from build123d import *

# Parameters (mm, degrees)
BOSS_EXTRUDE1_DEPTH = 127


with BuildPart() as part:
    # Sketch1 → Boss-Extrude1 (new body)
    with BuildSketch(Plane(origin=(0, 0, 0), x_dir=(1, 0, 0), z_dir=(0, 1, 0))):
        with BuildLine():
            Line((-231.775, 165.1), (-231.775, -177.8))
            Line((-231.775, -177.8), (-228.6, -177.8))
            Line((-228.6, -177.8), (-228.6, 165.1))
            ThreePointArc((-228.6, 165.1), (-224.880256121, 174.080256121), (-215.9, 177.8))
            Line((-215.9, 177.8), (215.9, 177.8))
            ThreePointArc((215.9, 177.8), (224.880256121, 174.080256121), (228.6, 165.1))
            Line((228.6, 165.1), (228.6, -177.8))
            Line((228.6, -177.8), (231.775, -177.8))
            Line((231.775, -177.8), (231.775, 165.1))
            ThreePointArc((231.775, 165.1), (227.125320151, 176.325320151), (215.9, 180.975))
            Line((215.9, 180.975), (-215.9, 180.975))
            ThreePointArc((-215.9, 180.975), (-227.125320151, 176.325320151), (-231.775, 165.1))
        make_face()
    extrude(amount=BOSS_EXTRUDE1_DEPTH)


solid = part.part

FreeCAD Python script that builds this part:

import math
import FreeCAD as App
import Part
import Sketcher
from FreeCAD import Vector
Q = App.Units.Quantity

doc = App.newDocument("Part")
body = doc.addObject("PartDesign::Body", "Body")

# Sketch on XZ plane
sketch1 = body.newObject("Sketcher::SketchObject", "Sketch")
sketch1.AttachmentSupport = (doc.getObject("XZ_Plane"), [""])
sketch1.MapMode = "FlatFace"
sketch1.addGeometry([
    Part.LineSegment(Vector(-231.8, -165.1, 0), Vector(-231.8, 177.8, 0)),  # 0
    Part.LineSegment(Vector(-231.8, 177.8, 0), Vector(-228.6, 177.8, 0)),  # 1
    Part.LineSegment(Vector(-228.6, 177.8, 0), Vector(-228.6, -165.1, 0)),  # 2
    Part.ArcOfCircle(Part.Circle(Vector(-215.9, -165.1, 0), Vector(0, 0, 1), 12.7), math.radians(180), math.radians(270)),  # 3
    Part.LineSegment(Vector(-215.9, -177.8, 0), Vector(215.9, -177.8, 0)),  # 4
    Part.ArcOfCircle(Part.Circle(Vector(215.9, -165.1, 0), Vector(0, 0, 1), 12.7), math.radians(-90), math.radians(0)),  # 5
    Part.LineSegment(Vector(228.6, -165.1, 0), Vector(228.6, 177.8, 0)),  # 6
    Part.LineSegment(Vector(228.6, 177.8, 0), Vector(231.8, 177.8, 0)),  # 7
    Part.LineSegment(Vector(231.8, 177.8, 0), Vector(231.8, -165.1, 0)),  # 8
    Part.ArcOfCircle(Part.Circle(Vector(215.9, -165.1, 0), Vector(0, 0, 1), 15.9), math.radians(-90), math.radians(0)),  # 9
    Part.LineSegment(Vector(215.9, -181, 0), Vector(-215.9, -181, 0)),  # 10
    Part.ArcOfCircle(Part.Circle(Vector(-215.9, -165.1, 0), Vector(0, 0, 1), 15.9), math.radians(-180), math.radians(-90)),  # 11
], False)
sketch1.addConstraint([
    Sketcher.Constraint("Coincident", 0, 2, 1, 1),
    Sketcher.Constraint("Coincident", 1, 2, 2, 1),
    Sketcher.Constraint("Tangent", 2, 2, 3, 1),
    Sketcher.Constraint("Tangent", 3, 2, 4, 1),
    Sketcher.Constraint("Tangent", 4, 2, 5, 1),
    Sketcher.Constraint("Tangent", 5, 2, 6, 1),
    Sketcher.Constraint("Coincident", 6, 2, 7, 1),
    Sketcher.Constraint("Coincident", 7, 2, 8, 1),
    Sketcher.Constraint("Tangent", 8, 2, 9, 2),
    Sketcher.Constraint("Tangent", 9, 1, 10, 1),
    Sketcher.Constraint("Tangent", 10, 2, 11, 2),
    Sketcher.Constraint("Tangent", 11, 1, 0, 1),
    Sketcher.Constraint("Vertical", 0),
    Sketcher.Constraint("Horizontal", 1),
    Sketcher.Constraint("Vertical", 2),
    Sketcher.Constraint("Horizontal", 4),
    Sketcher.Constraint("Vertical", 6),
    Sketcher.Constraint("Horizontal", 7),
    Sketcher.Constraint("Vertical", 8),
    Sketcher.Constraint("Horizontal", 10),
    Sketcher.Constraint("Coincident", 9, 3, 5, 3),
    Sketcher.Constraint("Coincident", 11, 3, 3, 3),
    Sketcher.Constraint("Equal", 3, 5),
    Sketcher.Constraint("Symmetric", 1, 2, 6, 2, -2),
    Sketcher.Constraint("Radius", 3, Q("0.5 in")),
    Sketcher.Constraint("DistanceX", 4, 1, 4, 2, Q("17 in")),
    Sketcher.Constraint("DistanceY", 0, 1, 0, 2, Q("13.5 in")),
    Sketcher.Constraint("DistanceY", -1, 1, 0, 2, Q("7 in")),
    Sketcher.Constraint("Radius", 9, Q("0.625 in")),
])
pad1 = body.newObject("PartDesign::Pad", "Pad")
pad1.Profile = sketch1
pad1.Length = Q("5 in")
pad1.Reversed = True

doc.recompute()
